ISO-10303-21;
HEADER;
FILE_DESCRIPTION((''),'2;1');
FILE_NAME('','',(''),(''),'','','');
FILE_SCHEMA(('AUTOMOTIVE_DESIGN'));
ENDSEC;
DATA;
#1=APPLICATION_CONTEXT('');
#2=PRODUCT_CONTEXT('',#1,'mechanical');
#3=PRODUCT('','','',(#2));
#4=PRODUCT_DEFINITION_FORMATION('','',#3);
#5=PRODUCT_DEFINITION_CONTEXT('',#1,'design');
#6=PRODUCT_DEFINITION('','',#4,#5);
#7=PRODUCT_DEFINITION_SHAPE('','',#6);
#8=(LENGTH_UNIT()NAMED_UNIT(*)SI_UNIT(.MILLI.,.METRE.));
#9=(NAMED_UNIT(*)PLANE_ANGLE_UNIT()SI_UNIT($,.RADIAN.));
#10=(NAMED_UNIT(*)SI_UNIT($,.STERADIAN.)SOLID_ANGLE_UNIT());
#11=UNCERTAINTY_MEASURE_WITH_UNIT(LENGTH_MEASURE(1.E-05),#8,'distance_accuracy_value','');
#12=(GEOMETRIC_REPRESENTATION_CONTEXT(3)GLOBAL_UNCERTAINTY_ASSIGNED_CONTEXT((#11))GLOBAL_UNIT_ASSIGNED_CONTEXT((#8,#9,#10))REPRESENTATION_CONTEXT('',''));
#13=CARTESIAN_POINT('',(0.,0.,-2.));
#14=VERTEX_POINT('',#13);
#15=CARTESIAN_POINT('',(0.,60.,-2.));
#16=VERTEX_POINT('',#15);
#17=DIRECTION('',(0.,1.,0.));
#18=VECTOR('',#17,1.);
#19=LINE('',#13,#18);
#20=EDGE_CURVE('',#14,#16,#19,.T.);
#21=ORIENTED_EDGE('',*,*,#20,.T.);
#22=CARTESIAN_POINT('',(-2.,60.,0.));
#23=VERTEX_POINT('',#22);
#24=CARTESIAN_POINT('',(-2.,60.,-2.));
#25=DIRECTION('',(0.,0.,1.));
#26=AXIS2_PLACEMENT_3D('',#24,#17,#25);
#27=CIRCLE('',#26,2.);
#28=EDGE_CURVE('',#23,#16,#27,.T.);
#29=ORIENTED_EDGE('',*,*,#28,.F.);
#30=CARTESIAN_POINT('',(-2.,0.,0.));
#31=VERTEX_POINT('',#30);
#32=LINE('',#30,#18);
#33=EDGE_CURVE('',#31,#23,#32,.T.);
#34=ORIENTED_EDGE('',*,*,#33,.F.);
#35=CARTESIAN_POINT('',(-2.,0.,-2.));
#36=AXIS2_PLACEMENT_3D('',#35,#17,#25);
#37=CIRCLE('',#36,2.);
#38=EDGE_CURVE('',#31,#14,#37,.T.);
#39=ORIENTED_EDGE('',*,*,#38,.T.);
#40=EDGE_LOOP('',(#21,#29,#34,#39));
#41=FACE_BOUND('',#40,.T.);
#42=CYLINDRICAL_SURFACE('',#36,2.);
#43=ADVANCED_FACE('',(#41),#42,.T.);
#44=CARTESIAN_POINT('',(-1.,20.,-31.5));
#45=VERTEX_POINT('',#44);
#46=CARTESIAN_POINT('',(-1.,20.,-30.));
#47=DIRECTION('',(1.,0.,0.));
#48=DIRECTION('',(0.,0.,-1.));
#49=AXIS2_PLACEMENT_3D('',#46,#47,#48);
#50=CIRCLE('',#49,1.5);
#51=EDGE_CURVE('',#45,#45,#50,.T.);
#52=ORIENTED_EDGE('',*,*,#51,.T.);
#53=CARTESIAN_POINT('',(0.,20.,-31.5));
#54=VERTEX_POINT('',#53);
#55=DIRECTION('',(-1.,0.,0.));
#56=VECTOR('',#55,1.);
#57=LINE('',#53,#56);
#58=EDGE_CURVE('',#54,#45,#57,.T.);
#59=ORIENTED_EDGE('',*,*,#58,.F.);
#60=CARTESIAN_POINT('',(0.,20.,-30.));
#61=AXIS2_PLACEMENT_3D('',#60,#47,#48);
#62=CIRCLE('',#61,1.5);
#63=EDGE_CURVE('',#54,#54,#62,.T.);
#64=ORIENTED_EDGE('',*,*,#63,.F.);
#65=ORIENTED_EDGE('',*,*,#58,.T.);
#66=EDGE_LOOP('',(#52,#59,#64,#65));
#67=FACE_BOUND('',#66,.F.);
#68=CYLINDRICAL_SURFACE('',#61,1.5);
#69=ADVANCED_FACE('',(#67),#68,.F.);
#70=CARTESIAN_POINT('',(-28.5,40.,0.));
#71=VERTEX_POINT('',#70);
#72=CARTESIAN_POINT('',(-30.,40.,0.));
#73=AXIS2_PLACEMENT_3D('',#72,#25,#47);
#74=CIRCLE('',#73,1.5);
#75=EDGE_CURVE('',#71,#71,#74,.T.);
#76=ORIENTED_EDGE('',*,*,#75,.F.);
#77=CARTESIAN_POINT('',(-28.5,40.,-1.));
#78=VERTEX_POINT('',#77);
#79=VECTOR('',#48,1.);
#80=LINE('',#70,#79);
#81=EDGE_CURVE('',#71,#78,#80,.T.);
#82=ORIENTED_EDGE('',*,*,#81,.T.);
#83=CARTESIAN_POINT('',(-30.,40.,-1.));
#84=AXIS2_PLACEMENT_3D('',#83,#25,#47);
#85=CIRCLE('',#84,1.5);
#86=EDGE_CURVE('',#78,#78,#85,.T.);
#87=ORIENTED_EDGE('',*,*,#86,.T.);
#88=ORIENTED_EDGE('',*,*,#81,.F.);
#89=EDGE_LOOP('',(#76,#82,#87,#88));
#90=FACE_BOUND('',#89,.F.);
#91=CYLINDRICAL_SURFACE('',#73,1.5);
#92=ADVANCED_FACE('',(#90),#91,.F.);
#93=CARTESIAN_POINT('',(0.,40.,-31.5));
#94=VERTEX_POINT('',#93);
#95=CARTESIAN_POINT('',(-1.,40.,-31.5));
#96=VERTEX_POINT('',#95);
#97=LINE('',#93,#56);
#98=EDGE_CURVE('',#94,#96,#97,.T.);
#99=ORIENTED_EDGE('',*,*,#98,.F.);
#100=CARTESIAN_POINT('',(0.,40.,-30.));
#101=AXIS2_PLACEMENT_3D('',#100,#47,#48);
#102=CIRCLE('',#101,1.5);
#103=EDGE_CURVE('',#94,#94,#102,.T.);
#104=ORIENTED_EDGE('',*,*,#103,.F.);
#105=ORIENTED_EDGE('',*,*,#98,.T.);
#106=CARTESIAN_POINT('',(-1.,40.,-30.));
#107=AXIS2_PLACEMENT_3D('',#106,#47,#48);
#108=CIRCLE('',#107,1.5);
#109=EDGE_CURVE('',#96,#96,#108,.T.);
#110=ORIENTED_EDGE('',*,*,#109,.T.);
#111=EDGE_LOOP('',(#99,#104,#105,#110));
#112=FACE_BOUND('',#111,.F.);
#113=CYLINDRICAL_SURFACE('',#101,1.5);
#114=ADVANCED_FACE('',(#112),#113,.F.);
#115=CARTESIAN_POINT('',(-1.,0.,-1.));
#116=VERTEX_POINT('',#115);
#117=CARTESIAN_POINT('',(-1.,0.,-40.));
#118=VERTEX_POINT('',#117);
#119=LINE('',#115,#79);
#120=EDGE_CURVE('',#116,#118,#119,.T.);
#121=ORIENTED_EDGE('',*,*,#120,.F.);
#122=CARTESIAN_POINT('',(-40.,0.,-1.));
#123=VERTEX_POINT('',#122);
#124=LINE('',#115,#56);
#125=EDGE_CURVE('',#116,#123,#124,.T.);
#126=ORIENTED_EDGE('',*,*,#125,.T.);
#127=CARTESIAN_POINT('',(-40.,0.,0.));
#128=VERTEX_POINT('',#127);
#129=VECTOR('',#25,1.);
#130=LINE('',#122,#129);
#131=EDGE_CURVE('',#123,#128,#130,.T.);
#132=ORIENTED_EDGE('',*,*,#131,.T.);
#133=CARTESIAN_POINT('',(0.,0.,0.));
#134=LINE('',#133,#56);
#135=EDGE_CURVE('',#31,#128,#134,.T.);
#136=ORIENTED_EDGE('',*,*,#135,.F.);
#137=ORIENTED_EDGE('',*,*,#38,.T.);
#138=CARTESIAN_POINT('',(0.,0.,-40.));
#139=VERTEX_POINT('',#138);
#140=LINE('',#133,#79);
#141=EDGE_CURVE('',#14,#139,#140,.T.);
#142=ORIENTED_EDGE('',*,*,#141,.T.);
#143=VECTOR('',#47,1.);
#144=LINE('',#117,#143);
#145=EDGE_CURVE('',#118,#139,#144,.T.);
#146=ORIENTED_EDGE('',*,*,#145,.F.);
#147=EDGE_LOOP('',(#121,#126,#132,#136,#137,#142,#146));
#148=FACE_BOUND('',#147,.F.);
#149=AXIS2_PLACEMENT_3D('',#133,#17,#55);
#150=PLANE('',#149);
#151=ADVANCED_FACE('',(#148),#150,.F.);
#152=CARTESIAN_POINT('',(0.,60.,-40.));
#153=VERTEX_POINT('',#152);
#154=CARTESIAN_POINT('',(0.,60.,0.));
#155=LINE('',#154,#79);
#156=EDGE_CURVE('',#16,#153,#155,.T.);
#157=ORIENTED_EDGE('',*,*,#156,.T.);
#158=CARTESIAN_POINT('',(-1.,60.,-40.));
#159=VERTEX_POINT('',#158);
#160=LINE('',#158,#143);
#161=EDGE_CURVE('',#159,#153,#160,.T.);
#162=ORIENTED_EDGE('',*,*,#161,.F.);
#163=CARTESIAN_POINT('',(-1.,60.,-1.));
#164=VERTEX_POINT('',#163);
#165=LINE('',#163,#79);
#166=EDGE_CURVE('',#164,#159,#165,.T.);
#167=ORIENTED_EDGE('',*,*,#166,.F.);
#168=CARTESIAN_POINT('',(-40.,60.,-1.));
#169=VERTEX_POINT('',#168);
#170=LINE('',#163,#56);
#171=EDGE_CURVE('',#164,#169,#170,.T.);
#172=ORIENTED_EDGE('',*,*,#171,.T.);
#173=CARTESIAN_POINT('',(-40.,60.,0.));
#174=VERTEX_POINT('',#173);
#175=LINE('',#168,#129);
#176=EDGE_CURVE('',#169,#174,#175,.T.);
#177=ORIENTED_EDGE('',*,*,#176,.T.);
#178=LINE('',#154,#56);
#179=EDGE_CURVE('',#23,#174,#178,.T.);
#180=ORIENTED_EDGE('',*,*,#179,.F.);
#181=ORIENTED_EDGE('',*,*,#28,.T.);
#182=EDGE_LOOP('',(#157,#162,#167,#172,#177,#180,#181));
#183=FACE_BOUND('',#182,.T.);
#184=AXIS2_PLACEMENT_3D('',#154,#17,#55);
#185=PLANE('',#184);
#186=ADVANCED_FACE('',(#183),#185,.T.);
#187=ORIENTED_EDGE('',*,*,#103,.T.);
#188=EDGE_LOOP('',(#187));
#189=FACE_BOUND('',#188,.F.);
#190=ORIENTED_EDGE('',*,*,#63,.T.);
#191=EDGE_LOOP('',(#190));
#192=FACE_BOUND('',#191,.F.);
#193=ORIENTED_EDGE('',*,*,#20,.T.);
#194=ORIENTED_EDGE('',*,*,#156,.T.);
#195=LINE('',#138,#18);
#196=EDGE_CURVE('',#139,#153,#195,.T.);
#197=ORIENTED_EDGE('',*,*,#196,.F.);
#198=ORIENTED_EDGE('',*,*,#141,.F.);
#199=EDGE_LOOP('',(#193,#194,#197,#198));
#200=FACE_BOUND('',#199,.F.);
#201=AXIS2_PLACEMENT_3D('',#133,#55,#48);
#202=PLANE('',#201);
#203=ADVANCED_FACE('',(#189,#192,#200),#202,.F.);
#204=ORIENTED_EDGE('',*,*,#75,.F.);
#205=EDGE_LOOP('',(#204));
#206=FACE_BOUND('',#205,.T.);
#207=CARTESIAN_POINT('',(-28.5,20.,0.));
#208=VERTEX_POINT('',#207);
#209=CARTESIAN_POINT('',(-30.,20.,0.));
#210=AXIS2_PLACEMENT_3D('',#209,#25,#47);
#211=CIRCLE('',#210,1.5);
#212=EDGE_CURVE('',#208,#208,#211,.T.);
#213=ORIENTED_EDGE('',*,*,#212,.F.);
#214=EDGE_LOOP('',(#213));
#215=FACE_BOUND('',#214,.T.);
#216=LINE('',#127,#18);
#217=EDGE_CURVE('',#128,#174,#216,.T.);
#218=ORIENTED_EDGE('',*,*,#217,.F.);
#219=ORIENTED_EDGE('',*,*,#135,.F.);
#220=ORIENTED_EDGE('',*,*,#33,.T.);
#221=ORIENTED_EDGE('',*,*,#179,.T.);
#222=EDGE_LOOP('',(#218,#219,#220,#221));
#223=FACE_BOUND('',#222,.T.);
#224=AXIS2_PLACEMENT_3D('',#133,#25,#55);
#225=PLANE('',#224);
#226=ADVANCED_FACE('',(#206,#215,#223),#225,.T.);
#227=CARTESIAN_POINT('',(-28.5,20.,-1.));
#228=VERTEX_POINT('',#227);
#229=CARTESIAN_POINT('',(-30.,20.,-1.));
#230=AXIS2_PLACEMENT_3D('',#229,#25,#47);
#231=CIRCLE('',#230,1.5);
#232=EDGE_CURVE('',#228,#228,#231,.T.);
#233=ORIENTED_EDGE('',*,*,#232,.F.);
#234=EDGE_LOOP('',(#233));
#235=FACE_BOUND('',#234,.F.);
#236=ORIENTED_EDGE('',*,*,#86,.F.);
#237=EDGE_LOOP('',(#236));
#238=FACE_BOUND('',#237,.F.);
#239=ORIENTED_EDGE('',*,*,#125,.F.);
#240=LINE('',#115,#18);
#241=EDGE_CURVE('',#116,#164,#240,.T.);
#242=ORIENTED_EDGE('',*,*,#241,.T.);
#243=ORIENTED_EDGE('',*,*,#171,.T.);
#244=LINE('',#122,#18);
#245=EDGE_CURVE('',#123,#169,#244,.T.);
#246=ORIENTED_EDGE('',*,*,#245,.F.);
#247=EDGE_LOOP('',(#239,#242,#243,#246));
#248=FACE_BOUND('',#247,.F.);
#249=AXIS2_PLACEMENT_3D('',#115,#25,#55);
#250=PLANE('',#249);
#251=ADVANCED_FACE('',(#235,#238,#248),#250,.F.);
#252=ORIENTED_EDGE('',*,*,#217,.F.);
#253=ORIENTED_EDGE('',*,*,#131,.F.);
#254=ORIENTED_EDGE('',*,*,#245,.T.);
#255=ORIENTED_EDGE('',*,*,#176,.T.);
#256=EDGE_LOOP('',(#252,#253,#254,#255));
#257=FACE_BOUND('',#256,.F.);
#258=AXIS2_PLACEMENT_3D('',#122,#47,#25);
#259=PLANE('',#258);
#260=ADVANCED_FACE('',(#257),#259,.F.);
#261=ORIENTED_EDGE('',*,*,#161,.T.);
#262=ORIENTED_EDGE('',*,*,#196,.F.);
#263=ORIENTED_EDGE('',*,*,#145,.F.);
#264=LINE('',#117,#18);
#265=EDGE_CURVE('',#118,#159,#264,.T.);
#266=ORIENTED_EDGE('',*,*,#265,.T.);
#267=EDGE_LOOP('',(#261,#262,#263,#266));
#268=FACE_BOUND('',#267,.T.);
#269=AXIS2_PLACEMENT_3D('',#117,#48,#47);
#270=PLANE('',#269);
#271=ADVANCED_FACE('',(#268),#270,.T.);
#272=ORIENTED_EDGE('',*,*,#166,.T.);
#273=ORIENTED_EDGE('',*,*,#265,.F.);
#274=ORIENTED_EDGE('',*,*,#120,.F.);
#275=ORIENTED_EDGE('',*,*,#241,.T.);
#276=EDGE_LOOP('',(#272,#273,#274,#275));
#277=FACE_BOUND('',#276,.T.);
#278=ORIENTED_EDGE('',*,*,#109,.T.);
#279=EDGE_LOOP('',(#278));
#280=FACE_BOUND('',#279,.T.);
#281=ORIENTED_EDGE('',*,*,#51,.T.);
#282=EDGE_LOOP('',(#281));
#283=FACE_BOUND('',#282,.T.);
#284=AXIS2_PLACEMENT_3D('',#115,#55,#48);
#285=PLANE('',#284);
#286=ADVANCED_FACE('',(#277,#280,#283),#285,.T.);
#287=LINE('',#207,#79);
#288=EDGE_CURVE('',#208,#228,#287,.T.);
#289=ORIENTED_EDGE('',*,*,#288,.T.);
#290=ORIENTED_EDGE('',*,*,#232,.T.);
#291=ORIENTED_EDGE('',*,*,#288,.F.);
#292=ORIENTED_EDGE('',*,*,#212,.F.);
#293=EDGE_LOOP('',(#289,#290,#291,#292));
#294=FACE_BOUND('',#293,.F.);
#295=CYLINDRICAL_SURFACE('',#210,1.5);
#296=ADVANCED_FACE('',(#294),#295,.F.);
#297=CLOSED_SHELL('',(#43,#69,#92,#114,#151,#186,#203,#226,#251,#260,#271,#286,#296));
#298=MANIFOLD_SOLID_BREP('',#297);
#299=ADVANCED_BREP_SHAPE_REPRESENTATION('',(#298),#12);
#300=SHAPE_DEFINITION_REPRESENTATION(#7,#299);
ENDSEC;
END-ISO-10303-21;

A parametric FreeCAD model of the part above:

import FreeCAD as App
import Part
import Sketcher
Q = App.Units.Quantity


def edges_at(feature, points):
    """Names of the edges that pass closest to the given points."""
    edges = feature.Shape.Edges
    near = lambda p: min(range(len(edges)), key=lambda i: edges[i].distToShape(Part.Vertex(*p))[0])
    return sorted({f"Edge{near(p) + 1}" for p in points})

doc = App.newDocument("Part")
body = doc.addObject("PartDesign::Body", "Body")

# Sketch on XZ plane
sketch1 = body.newObject("Sketcher::SketchObject", "Sketch")
sketch1.AttachmentSupport = (doc.getObject("XZ_Plane"), [""])
sketch1.MapMode = "FlatFace"
sketch1.addGeometry([
    Part.LineSegment(App.Vector(-40, 0, 0), App.Vector(0, 0, 0)),  # 0
    Part.LineSegment(App.Vector(0, 0, 0), App.Vector(0, -40, 0)),  # 1
    Part.LineSegment(App.Vector(0, -40, 0), App.Vector(-1, -40, 0)),  # 2
    Part.LineSegment(App.Vector(-1, -40, 0), App.Vector(-1, -1, 0)),  # 3
    Part.LineSegment(App.Vector(-1, -1, 0), App.Vector(-40, -1, 0)),  # 4
    Part.LineSegment(App.Vector(-40, -1, 0), App.Vector(-40, 0, 0)),  # 5
], False)
sketch1.addConstraint([
    Sketcher.Constraint("Coincident", 0, 2, 1, 1),
    Sketcher.Constraint("Coincident", 1, 2, 2, 1),
    Sketcher.Constraint("Coincident", 2, 2, 3, 1),
    Sketcher.Constraint("Coincident", 3, 2, 4, 1),
    Sketcher.Constraint("Coincident", 4, 2, 5, 1),
    Sketcher.Constraint("Coincident", 5, 2, 0, 1),
    Sketcher.Constraint("Horizontal", 0),
    Sketcher.Constraint("Vertical", 1),
    Sketcher.Constraint("Horizontal", 2),
    Sketcher.Constraint("Vertical", 3),
    Sketcher.Constraint("Horizontal", 4),
    Sketcher.Constraint("Vertical", 5),
    Sketcher.Constraint("Coincident", 0, 2, -1, 1),
    Sketcher.Constraint("Equal", 0, 1),
    Sketcher.Constraint("Equal", 4, 3),
    Sketcher.Constraint("DistanceX", 0, 1, 0, 2, Q("40 mm")),
    Sketcher.Constraint("DistanceX", 2, 2, 2, 1, Q("1 mm")),
])
pad1 = body.newObject("PartDesign::Pad", "Pad")
pad1.Profile = sketch1
pad1.Length = 60
pad1.Reversed = True
doc.recompute()

fillet = body.newObject("PartDesign::Fillet", "Fillet")
fillet.Base = (pad1, edges_at(pad1, [(0, 30, 0)]))
fillet.Radius = 2

# Sketch on YZ plane
sketch2 = body.newObject("Sketcher::SketchObject", "Sketch001")
sketch2.AttachmentSupport = (doc.getObject("YZ_Plane"), [""])
sketch2.MapMode = "FlatFace"
sketch2.addGeometry([
    Part.Circle(App.Vector(40, -30, 0), App.Vector(0, 0, 1), 1.5),
    Part.Circle(App.Vector(20, -30, 0), App.Vector(0, 0, 1), 1.5),
], False)
sketch2.addConstraint([
    Sketcher.Constraint("Equal", 0, 1),
    Sketcher.Constraint("Horizontal", 0, 3, 1, 3),
    Sketcher.Constraint("Diameter", 0, Q("3 mm")),
    Sketcher.Constraint("DistanceX", -1, 1, 0, 3, Q("40 mm")),
    Sketcher.Constraint("DistanceY", 0, 3, -1, 1, Q("30 mm")),
    Sketcher.Constraint("DistanceX", -1, 1, 1, 3, Q("20 mm")),
])
pocket1 = body.newObject("PartDesign::Pocket", "Pocket")
pocket1.Profile = sketch2
pocket1.Length = 1

# Sketch on XY plane
sketch3 = body.newObject("Sketcher::SketchObject", "Sketch002")
sketch3.AttachmentSupport = (doc.getObject("XY_Plane"), [""])
sketch3.MapMode = "FlatFace"
sketch3.addGeometry([
    Part.Circle(App.Vector(-30, 40, 0), App.Vector(0, 0, 1), 1.5),
    Part.Circle(App.Vector(-30, 20, 0), App.Vector(0, 0, 1), 1.5),
], False)
sketch3.addConstraint([
    Sketcher.Constraint("Equal", 0, 1),
    Sketcher.Constraint("Vertical", 0, 3, 1, 3),
    Sketcher.Constraint("Diameter", 0, Q("3 mm")),
    Sketcher.Constraint("DistanceX", 0, 3, -1, 1, Q("30 mm")),
    Sketcher.Constraint("DistanceY", -1, 1, 0, 3, Q("40 mm")),
    Sketcher.Constraint("DistanceY", -1, 1, 1, 3, Q("20 mm")),
])
pocket2 = body.newObject("PartDesign::Pocket", "Pocket001")
pocket2.Profile = sketch3
pocket2.Length = 1

doc.recompute()
